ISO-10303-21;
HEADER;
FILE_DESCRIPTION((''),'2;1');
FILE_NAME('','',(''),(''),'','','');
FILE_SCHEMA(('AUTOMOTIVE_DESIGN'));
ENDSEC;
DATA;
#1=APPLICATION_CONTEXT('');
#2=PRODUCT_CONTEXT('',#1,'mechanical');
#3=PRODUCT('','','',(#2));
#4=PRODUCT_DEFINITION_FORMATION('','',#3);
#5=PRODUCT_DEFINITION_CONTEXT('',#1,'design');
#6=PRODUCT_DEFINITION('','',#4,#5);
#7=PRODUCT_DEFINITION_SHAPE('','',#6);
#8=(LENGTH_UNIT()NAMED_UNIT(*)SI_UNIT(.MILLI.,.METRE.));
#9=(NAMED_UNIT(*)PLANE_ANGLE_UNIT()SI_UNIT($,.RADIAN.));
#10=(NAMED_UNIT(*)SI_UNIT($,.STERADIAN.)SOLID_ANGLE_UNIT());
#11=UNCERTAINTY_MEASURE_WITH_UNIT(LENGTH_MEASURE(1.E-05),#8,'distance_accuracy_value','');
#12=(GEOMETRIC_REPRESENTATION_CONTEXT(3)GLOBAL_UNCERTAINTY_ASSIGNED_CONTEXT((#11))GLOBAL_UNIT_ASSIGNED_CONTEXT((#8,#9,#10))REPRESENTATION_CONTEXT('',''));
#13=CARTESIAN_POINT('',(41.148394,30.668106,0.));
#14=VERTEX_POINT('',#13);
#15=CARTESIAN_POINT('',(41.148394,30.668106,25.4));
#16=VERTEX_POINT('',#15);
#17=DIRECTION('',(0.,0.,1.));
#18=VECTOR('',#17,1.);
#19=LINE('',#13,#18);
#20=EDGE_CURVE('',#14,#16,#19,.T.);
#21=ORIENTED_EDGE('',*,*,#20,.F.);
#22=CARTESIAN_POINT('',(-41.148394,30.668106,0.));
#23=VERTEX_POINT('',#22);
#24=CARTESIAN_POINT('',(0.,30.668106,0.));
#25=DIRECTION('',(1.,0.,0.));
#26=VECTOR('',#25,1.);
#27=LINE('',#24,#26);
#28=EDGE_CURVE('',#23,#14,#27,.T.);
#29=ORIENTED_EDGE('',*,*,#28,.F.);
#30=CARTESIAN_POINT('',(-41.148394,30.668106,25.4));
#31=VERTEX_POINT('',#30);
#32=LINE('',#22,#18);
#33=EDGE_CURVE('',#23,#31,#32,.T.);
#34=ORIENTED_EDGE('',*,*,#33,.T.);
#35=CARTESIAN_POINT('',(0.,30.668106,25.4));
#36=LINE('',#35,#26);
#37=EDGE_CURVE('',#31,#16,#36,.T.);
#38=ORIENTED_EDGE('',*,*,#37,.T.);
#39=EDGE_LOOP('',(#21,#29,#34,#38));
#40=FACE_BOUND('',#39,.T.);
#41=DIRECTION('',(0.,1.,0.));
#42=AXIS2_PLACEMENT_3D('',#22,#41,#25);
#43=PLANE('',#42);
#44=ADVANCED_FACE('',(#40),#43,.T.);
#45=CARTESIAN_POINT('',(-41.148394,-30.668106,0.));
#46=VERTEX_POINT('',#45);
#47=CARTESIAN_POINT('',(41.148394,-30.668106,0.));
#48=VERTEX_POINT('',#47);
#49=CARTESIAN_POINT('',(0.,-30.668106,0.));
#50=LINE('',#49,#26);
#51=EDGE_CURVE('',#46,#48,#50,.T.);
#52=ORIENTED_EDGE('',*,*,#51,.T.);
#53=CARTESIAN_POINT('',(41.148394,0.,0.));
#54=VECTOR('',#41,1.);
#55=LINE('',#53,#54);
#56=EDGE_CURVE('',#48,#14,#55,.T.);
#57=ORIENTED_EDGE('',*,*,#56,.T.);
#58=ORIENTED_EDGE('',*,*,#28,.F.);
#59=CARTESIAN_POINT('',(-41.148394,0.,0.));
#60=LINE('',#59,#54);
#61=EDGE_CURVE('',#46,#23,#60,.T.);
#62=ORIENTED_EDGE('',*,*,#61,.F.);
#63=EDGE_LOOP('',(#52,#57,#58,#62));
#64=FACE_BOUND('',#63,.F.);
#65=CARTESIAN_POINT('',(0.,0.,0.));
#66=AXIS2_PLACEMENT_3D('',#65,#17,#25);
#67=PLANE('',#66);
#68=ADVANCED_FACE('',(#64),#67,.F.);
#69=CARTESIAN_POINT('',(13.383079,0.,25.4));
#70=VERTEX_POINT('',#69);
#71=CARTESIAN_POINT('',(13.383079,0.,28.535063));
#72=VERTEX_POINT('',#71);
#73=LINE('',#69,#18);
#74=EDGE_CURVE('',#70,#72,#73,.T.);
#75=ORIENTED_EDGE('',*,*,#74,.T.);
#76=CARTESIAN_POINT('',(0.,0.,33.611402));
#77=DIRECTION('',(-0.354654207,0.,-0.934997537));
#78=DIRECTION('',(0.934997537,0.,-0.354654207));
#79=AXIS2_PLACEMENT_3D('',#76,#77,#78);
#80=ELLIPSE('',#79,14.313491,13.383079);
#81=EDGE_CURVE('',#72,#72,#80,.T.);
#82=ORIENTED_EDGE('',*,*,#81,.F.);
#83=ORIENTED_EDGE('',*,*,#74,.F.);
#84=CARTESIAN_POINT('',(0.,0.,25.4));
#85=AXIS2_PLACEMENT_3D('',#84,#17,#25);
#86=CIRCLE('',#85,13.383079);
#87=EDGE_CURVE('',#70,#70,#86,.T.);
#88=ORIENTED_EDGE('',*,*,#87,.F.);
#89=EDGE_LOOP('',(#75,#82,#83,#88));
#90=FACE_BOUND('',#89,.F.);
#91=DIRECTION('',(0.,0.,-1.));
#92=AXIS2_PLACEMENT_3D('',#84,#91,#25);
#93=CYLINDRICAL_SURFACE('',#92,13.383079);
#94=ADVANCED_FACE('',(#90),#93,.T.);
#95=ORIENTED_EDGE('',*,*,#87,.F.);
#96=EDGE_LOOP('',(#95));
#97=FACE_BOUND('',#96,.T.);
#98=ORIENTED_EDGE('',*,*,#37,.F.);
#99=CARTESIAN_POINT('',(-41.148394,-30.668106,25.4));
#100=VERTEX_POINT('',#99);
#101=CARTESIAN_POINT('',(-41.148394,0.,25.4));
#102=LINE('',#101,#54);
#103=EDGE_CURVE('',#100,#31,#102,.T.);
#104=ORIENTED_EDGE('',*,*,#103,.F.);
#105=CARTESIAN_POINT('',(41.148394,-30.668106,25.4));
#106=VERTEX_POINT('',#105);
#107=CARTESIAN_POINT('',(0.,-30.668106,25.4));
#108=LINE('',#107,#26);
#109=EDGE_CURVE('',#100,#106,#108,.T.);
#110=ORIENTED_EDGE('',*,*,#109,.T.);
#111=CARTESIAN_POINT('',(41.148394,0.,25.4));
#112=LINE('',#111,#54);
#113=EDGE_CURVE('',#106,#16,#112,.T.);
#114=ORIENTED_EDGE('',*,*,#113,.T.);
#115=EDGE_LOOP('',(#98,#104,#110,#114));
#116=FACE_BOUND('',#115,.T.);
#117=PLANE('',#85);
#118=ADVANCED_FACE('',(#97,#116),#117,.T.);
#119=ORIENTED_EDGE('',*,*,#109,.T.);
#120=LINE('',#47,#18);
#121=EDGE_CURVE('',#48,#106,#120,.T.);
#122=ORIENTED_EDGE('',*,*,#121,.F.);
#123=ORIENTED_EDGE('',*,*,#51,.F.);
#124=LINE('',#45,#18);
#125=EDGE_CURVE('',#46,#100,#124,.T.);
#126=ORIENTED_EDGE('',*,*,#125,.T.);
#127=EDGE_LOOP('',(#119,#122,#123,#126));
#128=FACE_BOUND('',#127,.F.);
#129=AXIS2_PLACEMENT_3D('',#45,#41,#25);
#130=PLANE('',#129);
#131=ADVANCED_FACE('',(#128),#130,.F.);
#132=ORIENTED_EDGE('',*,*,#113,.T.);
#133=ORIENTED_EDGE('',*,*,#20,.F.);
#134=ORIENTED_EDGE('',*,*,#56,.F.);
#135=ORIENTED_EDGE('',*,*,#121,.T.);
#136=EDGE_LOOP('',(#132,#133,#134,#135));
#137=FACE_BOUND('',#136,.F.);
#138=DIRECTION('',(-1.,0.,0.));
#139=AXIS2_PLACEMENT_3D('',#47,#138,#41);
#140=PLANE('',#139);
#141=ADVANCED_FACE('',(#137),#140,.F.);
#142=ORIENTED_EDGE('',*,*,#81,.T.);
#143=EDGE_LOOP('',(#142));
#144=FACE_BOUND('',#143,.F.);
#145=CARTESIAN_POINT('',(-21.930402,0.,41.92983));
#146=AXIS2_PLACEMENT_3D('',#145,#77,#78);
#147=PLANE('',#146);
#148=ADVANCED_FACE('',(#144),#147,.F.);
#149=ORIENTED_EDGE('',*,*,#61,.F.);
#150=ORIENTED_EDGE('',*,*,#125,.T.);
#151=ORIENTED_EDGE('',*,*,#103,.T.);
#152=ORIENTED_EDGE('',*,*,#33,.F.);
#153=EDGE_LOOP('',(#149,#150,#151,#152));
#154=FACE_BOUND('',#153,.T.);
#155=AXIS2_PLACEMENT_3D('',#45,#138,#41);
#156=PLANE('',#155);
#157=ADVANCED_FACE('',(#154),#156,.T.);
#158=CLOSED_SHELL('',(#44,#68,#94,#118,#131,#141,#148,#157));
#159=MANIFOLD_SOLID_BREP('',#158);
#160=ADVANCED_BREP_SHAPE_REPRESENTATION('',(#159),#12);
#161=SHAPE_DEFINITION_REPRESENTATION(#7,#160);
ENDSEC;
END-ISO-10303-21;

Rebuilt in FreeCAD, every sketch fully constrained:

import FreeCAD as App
import Part
import Sketcher

V = App.Vector
Q = App.Units.Quantity

doc = App.newDocument("Part")
body = doc.addObject("PartDesign::Body", "Body")

sketch1 = body.newObject("Sketcher::SketchObject", "Sketch")
sketch1.AttachmentSupport = (doc.getObject("XY_Plane"), [""])
sketch1.MapMode = "FlatFace"
sketch1.addGeometry(Part.LineSegment(V(-41, 31, 0), V(-41, -31, 0)), False)
sketch1.addGeometry(Part.LineSegment(V(-41, -31, 0), V(41, -31, 0)), False)
sketch1.addGeometry(Part.LineSegment(V(41, -31, 0), V(41, 31, 0)), False)
sketch1.addGeometry(Part.LineSegment(V(41, 31, 0), V(-41, 31, 0)), False)
sketch1.addConstraint(Sketcher.Constraint("Coincident", 0, 2, 1, 1))
sketch1.addConstraint(Sketcher.Constraint("Coincident", 1, 2, 2, 1))
sketch1.addConstraint(Sketcher.Constraint("Coincident", 2, 2, 3, 1))
sketch1.addConstraint(Sketcher.Constraint("Coincident", 3, 2, 0, 1))
sketch1.addConstraint(Sketcher.Constraint("Vertical", 0))
sketch1.addConstraint(Sketcher.Constraint("Horizontal", 1))
sketch1.addConstraint(Sketcher.Constraint("Vertical", 2))
sketch1.addConstraint(Sketcher.Constraint("Horizontal", 3))
sketch1.addConstraint(Sketcher.Constraint("Symmetric", 0, 2, 2, 2, -1, 1))
sketch1.addConstraint(Sketcher.Constraint("DistanceX", 1, 1, 1, 2, 82.296788))
sketch1.addConstraint(Sketcher.Constraint("DistanceY", 0, 2, 0, 1, 61.336212))
pad1 = body.newObject("PartDesign::Pad", "Pad")
pad1.Profile = sketch1
pad1.Length = Q("1 in")

sketch2 = body.newObject("Sketcher::SketchObject", "Sketch001")
sketch2.AttachmentSupport = (doc.getObject("XY_Plane"), [""])
sketch2.MapMode = "FlatFace"
sketch2.AttachmentOffset = App.Placement(V(0, 0, 1 * 25.4), App.Rotation())
sketch2.addGeometry(Part.Circle(V(0, 0, 0), V(0, 0, 1), 13), False)
sketch2.addConstraint(Sketcher.Constraint("Coincident", 0, 3, -1, 1))
sketch2.addConstraint(Sketcher.Constraint("Diameter", 0, 26.766158))
pad2 = body.newObject("PartDesign::Pad", "Pad001")
pad2.Profile = sketch2
pad2.Length = Q("0.59 in")

sketch3 = body.newObject("Sketcher::SketchObject", "Sketch002")
sketch3.AttachmentSupport = (doc.getObject("XZ_Plane"), [""])
sketch3.MapMode = "FlatFace"
sketch3.addGeometry(Part.LineSegment(V(18, 42, 0), V(-22, 42, 0)), False)
sketch3.addGeometry(Part.LineSegment(V(-22, 42, 0), V(18, 27, 0)), False)
sketch3.addGeometry(Part.LineSegment(V(18, 27, 0), V(18, 42, 0)), False)
sketch3.addConstraint(Sketcher.Constraint("Coincident", 0, 2, 1, 1))
sketch3.addConstraint(Sketcher.Constraint("Coincident", 1, 2, 2, 1))
sketch3.addConstraint(Sketcher.Constraint("Coincident", 2, 2, 0, 1))
sketch3.addConstraint(Sketcher.Constraint("Horizontal", 0))
sketch3.addConstraint(Sketcher.Constraint("Vertical", 2))
sketch3.addConstraint(Sketcher.Constraint("DistanceX", 0, 2, 0, 1, 39.998852))
sketch3.addConstraint(Sketcher.Constraint("DistanceY", 2, 1, 2, 2, 15.171977))
sketch3.addConstraint(Sketcher.Constraint("DistanceY", -1, 1, 0, 2, 41.92983))
sketch3.addConstraint(Sketcher.Constraint("DistanceX", -1, 1, 1, 2, 18.06845))
pocket1 = body.newObject("PartDesign::Pocket", "Pocket")
pocket1.Profile = sketch3
pocket1.Length = Q("2 in")
pocket1.Midplane = True

doc.recompute()
